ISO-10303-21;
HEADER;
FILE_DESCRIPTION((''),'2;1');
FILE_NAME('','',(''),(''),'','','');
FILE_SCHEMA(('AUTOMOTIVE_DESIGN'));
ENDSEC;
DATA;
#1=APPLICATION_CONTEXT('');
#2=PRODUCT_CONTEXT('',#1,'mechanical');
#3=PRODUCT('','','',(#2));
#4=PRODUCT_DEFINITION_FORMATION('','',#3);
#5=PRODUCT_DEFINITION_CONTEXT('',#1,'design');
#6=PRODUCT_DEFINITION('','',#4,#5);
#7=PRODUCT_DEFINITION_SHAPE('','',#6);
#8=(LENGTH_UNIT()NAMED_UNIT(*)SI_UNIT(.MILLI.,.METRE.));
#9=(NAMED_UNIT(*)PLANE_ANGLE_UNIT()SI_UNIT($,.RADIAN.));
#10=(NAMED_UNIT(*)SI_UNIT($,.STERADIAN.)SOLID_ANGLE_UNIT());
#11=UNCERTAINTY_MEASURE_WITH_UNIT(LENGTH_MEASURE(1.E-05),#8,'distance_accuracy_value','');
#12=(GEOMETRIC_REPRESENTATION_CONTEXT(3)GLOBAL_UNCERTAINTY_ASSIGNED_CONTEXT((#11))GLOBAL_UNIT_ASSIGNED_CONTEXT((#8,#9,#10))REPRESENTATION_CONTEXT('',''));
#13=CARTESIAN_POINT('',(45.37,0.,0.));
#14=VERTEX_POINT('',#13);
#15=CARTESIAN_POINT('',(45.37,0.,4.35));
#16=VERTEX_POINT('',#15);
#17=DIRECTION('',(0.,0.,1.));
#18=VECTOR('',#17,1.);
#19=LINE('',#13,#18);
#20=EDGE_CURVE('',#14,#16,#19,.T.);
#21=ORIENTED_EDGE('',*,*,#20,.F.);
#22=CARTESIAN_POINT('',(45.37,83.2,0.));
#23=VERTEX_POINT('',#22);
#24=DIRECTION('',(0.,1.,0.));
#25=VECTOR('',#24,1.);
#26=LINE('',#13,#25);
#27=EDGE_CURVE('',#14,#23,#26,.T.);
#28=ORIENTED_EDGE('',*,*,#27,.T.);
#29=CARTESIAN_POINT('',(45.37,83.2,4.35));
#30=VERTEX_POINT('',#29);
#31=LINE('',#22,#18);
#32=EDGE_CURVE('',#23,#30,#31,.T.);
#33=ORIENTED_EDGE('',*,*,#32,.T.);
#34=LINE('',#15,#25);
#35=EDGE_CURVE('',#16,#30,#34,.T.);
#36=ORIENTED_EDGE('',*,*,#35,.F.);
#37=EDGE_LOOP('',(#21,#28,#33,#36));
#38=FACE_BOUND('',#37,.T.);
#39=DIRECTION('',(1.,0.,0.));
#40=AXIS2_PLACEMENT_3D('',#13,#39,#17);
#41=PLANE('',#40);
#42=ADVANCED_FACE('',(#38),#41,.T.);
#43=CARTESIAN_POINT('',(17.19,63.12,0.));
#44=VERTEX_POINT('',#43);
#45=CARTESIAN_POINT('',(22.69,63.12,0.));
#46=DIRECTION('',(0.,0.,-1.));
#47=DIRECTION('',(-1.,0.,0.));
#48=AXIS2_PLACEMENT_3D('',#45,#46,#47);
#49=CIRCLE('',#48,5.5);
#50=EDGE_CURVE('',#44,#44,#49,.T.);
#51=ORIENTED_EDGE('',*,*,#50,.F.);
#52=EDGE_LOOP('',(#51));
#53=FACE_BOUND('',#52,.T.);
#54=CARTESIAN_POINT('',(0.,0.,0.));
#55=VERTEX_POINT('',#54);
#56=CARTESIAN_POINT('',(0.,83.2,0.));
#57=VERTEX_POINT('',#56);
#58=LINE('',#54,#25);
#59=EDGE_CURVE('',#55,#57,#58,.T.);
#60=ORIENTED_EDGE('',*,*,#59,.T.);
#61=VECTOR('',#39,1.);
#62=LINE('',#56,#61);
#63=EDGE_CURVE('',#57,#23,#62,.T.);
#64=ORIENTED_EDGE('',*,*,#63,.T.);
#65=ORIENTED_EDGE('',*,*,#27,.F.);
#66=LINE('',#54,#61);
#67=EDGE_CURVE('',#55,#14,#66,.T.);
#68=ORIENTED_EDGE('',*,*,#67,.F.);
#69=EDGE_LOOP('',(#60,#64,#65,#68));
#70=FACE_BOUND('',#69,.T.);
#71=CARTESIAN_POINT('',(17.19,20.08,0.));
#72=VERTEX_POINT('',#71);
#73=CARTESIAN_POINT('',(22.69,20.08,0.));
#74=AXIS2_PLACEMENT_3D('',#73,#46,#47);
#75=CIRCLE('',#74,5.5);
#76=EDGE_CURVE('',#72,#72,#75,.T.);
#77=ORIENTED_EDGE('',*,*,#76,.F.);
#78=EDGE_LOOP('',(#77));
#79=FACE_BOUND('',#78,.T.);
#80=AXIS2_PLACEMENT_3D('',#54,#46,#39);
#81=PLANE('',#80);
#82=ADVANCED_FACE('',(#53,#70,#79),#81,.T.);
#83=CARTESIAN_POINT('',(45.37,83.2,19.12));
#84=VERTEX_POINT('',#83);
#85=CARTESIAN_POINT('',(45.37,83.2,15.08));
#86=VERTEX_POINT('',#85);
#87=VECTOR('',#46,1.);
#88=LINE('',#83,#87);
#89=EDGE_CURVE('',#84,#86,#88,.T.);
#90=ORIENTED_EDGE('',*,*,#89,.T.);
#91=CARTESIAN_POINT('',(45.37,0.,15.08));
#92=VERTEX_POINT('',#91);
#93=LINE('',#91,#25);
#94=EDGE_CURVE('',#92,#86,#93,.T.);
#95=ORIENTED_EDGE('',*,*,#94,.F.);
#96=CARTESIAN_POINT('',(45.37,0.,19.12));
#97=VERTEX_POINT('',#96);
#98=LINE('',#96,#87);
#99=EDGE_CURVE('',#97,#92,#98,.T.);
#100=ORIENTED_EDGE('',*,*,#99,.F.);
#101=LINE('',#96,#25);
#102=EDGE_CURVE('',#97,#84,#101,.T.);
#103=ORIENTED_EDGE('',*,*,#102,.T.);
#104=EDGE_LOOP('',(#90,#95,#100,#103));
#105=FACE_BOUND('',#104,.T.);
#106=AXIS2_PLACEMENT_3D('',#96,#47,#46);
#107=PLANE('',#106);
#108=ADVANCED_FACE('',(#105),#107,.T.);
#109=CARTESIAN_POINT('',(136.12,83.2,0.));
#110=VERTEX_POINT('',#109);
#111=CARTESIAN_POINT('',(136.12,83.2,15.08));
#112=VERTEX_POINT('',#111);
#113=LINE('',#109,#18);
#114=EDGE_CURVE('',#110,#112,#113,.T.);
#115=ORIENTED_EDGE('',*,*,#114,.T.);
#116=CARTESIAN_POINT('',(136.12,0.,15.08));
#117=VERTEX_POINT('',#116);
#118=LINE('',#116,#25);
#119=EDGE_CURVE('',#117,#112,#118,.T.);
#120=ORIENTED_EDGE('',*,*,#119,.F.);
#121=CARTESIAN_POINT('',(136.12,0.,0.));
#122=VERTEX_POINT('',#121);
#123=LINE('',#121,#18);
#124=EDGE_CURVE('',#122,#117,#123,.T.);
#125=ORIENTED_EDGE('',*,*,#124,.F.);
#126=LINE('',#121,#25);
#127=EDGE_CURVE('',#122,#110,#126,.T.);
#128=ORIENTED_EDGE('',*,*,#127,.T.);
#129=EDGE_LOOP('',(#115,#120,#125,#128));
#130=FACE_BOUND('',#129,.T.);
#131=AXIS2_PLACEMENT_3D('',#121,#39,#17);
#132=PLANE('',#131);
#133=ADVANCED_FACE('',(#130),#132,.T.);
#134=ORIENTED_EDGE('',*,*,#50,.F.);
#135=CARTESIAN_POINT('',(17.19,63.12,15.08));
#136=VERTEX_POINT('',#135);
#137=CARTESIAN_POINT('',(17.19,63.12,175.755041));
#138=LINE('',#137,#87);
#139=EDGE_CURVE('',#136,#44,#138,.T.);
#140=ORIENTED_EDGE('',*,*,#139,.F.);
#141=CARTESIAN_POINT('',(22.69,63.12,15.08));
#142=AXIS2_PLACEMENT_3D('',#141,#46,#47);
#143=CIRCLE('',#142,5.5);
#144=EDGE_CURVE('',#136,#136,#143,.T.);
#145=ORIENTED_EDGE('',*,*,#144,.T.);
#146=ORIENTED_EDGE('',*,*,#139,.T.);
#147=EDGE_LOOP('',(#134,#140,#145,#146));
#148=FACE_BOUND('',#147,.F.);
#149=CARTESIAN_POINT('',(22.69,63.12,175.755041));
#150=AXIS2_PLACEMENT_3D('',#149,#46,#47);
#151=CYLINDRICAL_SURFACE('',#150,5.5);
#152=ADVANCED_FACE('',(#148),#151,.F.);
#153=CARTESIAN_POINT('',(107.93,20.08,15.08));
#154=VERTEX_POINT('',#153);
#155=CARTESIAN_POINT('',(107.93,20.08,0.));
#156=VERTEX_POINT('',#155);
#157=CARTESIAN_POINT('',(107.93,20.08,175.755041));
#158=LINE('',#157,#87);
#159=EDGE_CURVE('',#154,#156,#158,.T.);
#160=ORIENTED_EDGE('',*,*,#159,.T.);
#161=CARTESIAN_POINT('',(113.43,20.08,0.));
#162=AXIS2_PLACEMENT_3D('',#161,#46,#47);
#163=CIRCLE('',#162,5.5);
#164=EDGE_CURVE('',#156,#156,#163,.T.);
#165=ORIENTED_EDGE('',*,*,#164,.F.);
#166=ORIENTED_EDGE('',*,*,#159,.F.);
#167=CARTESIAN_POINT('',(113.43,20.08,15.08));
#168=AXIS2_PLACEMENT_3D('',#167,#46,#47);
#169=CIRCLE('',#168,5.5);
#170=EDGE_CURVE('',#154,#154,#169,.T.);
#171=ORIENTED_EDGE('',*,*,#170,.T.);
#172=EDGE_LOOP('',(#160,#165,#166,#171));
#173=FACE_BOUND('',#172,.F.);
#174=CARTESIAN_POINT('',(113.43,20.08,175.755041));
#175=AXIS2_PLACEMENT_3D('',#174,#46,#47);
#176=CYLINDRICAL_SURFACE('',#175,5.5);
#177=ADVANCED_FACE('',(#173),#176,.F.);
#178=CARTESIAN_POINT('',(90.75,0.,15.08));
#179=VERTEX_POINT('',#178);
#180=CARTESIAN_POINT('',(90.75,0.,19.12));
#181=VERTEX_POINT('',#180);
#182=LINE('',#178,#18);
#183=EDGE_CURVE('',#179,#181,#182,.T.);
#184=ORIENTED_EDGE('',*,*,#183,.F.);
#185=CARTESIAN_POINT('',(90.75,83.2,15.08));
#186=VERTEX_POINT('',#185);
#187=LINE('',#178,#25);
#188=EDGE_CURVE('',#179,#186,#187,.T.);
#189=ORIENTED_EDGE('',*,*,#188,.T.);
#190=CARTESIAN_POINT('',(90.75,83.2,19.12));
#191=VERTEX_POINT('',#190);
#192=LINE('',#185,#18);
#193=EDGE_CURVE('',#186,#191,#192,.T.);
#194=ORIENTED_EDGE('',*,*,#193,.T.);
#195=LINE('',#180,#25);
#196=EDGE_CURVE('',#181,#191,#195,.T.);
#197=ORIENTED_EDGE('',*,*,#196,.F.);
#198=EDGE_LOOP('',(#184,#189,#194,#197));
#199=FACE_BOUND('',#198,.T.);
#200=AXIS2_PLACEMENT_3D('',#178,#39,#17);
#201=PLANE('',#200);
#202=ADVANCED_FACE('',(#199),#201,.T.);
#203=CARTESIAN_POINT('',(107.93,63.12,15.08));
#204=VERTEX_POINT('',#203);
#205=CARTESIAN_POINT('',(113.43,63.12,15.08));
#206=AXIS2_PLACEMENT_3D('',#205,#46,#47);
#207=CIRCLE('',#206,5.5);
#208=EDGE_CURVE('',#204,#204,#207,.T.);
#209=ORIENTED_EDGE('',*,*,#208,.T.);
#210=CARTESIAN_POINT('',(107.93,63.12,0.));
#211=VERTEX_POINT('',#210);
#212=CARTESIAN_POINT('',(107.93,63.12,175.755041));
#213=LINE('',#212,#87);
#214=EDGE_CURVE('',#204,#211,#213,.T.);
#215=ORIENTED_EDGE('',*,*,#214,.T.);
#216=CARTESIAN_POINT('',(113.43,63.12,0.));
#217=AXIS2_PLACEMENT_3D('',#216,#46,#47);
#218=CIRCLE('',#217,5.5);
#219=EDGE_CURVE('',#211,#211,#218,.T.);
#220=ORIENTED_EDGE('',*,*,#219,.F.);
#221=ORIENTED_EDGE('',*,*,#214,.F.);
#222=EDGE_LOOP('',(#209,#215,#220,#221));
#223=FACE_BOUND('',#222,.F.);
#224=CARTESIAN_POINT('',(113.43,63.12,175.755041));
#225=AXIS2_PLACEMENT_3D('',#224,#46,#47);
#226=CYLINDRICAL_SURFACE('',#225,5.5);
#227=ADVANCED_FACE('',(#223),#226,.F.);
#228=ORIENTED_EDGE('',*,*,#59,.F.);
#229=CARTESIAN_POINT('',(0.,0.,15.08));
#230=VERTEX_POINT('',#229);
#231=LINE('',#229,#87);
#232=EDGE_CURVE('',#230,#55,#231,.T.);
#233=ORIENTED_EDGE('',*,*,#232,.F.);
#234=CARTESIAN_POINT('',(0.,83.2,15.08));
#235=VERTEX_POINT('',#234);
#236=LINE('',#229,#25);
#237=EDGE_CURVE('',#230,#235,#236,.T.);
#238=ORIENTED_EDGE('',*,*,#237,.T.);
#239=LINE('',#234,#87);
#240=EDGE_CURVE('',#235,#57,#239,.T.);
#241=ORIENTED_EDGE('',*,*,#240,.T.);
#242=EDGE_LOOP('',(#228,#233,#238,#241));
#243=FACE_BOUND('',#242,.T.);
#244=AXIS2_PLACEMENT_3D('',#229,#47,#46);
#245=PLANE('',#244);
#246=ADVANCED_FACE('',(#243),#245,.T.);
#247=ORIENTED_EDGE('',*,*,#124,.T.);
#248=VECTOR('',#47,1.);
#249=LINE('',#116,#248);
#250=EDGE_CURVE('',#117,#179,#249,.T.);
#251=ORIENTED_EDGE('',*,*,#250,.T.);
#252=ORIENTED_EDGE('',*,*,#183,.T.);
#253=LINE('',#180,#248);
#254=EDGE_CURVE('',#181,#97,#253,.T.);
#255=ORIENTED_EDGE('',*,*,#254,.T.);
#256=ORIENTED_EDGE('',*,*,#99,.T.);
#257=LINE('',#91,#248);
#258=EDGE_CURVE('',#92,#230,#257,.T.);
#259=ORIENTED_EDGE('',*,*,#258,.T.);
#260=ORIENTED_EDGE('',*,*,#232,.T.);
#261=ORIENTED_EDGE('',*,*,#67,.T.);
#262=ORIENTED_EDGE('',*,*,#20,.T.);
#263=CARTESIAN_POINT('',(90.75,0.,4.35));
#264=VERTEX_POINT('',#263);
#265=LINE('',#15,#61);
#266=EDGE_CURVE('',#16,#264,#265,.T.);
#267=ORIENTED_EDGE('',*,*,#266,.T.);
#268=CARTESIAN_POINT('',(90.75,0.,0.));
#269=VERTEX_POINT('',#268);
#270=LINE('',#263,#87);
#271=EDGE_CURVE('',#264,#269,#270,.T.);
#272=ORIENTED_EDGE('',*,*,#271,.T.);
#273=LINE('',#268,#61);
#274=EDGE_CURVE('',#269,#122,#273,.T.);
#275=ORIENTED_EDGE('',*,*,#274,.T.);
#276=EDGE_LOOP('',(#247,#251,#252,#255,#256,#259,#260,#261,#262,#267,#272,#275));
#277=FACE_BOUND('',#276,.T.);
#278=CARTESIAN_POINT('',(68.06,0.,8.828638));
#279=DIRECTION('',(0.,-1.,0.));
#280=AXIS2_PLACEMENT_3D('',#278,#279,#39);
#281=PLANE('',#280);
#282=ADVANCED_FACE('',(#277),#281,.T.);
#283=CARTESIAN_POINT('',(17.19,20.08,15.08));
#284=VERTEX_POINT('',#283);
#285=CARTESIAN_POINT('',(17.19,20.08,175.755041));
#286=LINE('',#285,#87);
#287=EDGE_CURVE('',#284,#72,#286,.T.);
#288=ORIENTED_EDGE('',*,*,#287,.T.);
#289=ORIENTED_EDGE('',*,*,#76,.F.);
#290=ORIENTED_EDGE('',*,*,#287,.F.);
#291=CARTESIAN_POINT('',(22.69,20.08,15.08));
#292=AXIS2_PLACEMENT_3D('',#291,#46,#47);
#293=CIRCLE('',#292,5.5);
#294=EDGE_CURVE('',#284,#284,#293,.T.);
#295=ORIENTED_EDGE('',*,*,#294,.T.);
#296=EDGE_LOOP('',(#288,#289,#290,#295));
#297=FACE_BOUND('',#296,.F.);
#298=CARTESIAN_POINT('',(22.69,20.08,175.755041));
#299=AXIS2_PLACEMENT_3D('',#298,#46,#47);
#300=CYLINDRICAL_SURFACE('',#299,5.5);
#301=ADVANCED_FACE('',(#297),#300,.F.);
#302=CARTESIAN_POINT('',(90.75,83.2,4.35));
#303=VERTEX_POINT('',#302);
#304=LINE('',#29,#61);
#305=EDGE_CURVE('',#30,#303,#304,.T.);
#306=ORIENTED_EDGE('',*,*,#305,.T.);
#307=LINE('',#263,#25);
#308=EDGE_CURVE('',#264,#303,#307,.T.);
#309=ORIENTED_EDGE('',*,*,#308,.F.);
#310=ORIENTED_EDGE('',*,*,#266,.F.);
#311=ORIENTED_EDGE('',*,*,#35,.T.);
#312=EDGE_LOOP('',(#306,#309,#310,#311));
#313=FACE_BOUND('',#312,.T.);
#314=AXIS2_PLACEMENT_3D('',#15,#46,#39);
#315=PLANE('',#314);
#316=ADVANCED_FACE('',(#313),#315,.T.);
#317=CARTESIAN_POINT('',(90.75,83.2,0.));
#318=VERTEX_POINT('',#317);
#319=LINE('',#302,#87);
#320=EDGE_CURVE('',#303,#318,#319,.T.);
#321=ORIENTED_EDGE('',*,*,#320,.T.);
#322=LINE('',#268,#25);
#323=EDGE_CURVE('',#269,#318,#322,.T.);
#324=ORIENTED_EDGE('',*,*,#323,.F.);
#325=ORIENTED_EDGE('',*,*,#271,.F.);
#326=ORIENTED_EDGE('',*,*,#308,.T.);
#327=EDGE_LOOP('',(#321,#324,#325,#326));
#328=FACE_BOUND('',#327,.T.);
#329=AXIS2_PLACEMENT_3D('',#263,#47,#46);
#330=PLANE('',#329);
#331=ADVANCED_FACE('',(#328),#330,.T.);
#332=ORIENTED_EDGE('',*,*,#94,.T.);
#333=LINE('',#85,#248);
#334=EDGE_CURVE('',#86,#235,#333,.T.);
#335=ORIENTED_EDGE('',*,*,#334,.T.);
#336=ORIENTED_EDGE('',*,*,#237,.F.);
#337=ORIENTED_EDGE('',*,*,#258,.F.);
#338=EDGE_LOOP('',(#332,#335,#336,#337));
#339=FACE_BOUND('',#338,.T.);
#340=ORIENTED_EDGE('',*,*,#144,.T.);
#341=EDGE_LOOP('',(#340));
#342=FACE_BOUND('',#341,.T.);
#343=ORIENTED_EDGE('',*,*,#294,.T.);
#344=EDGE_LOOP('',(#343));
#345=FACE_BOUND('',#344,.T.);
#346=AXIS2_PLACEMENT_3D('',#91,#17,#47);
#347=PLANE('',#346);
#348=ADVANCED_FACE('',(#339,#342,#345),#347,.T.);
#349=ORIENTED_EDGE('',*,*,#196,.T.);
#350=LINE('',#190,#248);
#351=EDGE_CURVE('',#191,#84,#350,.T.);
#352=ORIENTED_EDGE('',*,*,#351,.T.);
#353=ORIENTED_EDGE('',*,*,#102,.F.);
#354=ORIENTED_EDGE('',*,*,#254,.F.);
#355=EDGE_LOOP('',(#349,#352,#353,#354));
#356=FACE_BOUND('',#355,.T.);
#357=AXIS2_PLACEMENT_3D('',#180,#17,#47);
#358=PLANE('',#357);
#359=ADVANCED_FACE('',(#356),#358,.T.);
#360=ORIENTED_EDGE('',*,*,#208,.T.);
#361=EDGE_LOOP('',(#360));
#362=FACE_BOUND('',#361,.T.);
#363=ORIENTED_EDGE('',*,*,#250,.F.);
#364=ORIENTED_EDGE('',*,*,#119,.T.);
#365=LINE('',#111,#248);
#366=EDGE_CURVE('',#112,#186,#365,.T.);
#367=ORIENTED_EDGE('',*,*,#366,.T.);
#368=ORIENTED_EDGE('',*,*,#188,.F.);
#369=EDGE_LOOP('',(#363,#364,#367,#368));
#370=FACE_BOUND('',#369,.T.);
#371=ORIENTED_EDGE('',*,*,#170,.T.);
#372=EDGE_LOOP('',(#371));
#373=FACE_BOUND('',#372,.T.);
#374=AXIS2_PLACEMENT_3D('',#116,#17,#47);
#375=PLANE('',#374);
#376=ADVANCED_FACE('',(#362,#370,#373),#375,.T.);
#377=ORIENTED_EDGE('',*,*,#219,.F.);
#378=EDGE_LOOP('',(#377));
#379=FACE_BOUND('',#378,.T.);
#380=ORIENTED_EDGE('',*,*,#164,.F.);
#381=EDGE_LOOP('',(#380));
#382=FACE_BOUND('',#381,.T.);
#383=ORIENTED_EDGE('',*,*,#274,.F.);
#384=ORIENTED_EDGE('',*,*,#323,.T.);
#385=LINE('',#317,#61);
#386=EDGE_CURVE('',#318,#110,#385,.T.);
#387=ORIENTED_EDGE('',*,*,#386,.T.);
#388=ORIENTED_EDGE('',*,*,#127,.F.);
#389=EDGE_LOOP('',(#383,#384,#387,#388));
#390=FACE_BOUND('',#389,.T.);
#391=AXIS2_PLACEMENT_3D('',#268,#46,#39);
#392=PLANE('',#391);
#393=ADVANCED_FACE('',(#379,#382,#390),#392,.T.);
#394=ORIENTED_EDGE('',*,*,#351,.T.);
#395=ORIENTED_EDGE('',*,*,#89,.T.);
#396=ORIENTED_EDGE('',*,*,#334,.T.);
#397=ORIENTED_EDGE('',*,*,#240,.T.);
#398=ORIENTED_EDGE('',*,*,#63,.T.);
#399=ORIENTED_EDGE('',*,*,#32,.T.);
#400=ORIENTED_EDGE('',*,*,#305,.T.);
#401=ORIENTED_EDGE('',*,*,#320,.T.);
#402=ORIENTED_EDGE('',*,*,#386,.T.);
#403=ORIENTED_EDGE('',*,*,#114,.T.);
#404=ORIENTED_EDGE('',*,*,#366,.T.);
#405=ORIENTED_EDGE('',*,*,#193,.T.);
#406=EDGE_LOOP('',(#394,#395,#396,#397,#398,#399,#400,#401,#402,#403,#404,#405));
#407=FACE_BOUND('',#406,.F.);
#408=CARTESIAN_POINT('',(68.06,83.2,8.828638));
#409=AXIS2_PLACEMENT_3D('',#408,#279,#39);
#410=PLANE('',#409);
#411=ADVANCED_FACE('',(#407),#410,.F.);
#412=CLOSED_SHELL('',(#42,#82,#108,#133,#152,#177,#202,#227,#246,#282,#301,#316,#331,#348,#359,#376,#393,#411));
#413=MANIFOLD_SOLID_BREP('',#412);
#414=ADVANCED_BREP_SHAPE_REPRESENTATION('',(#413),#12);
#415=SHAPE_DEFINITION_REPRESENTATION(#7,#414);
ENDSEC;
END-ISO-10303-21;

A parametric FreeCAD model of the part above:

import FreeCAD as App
import Part
import Sketcher

V = App.Vector


def add_polygon(sketch, points):
    """Adds a closed chain of lines whose ends are joined by coincident constraints."""
    first, n = sketch.GeometryCount, len(points)
    for a, b in zip(points, points[1:] + points[:1]):
        sketch.addGeometry(Part.LineSegment(App.Vector(*a, 0), App.Vector(*b, 0)), False)
    for i in range(n):
        sketch.addConstraint(Sketcher.Constraint("Coincident", first + i, 2, first + (i + 1) % n, 1))

doc = App.newDocument("Part")
body = doc.addObject("PartDesign::Body", "Body")

# Sketch on XZ plane
sketch1 = doc.addObject("Sketcher::SketchObject", "Sketch")
body.addObject(sketch1)
sketch1.AttachmentSupport = (doc.XZ_Plane, [""])
sketch1.MapMode = "FlatFace"
add_polygon(sketch1, [(0, 15.08), (0, 0), (45.37, 0), (45.37, 4.35), (90.75, 4.35), (90.75, 0), (136.12, 0), (136.12, 15.08), (90.75, 15.08), (90.75, 19.12), (45.37, 19.12), (45.37, 15.08)])  # lines 0-11
sketch1.addConstraint([
    Sketcher.Constraint("Vertical", 0),
    Sketcher.Constraint("Horizontal", 1),
    Sketcher.Constraint("Vertical", 2),
    Sketcher.Constraint("Horizontal", 3),
    Sketcher.Constraint("Vertical", 4),
    Sketcher.Constraint("Horizontal", 5),
    Sketcher.Constraint("Vertical", 6),
    Sketcher.Constraint("Horizontal", 7),
    Sketcher.Constraint("Vertical", 8),
    Sketcher.Constraint("Horizontal", 9),
    Sketcher.Constraint("Vertical", 10),
    Sketcher.Constraint("Horizontal", 11),
    Sketcher.Constraint("Coincident", 0, 2, -1, 1),
    Sketcher.Constraint("PointOnObject", 4, 2, -1),
    Sketcher.Constraint("Horizontal", 7, 2, 10, 2),
    Sketcher.Constraint("Vertical", 4, 2, 7, 2),
    Sketcher.Constraint("Vertical", 2, 2, 9, 2),
    Sketcher.Constraint("Equal", 1, 5),
    Sketcher.Constraint("DistanceX", 1, 1, 1, 2, 45.37),
    Sketcher.Constraint("DistanceX", 3, 1, 3, 2, 45.38),
    Sketcher.Constraint("DistanceY", 0, 2, 0, 1, 15.08),
    Sketcher.Constraint("DistanceY", 2, 1, 2, 2, 4.35),
    Sketcher.Constraint("DistanceY", 8, 1, 8, 2, 4.04),
])
pad1 = doc.addObject("PartDesign::Pad", "Pad")
body.addObject(pad1)
pad1.Profile = sketch1
pad1.Length = 83.2
pad1.Reversed = True

# Sketch on XY plane
sketch2 = doc.addObject("Sketcher::SketchObject", "Sketch001")
body.addObject(sketch2)
sketch2.AttachmentSupport = (doc.XY_Plane, [""])
sketch2.MapMode = "FlatFace"
sketch2.AttachmentOffset = App.Placement(V(0, 0, 15.08), App.Rotation())
sketch2.addGeometry([
    Part.Circle(V(22.69, 20.08, 0), V(0, 0, 1), 5.5),
    Part.Circle(V(22.69, 63.12, 0), V(0, 0, 1), 5.5),
    Part.Circle(V(113.43, 63.12, 0), V(0, 0, 1), 5.5),
    Part.Circle(V(113.43, 20.08, 0), V(0, 0, 1), 5.5),
], False)
sketch2.addConstraint([
    Sketcher.Constraint("Equal", 0, 1),
    Sketcher.Constraint("Equal", 1, 2),
    Sketcher.Constraint("Equal", 2, 3),
    Sketcher.Constraint("Horizontal", 1, 3, 2, 3),
    Sketcher.Constraint("Horizontal", 0, 3, 3, 3),
    Sketcher.Constraint("Vertical", 0, 3, 1, 3),
    Sketcher.Constraint("Vertical", 2, 3, 3, 3),
    Sketcher.Constraint("Diameter", 0, 11.0),
    Sketcher.Constraint("DistanceX", -1, 1, 0, 3, 22.69),
    Sketcher.Constraint("DistanceY", -1, 1, 0, 3, 20.08),
    Sketcher.Constraint("DistanceY", -1, 1, 1, 3, 63.12),
    Sketcher.Constraint("DistanceX", -1, 1, 2, 3, 113.43),
])
doc.recompute()
hole = doc.addObject("PartDesign::Hole", "Hole")
body.addObject(hole)
hole.Profile = sketch2
hole.ThreadType = "None"
hole.Diameter = 11
hole.DepthType = "ThroughAll"

doc.recompute()
